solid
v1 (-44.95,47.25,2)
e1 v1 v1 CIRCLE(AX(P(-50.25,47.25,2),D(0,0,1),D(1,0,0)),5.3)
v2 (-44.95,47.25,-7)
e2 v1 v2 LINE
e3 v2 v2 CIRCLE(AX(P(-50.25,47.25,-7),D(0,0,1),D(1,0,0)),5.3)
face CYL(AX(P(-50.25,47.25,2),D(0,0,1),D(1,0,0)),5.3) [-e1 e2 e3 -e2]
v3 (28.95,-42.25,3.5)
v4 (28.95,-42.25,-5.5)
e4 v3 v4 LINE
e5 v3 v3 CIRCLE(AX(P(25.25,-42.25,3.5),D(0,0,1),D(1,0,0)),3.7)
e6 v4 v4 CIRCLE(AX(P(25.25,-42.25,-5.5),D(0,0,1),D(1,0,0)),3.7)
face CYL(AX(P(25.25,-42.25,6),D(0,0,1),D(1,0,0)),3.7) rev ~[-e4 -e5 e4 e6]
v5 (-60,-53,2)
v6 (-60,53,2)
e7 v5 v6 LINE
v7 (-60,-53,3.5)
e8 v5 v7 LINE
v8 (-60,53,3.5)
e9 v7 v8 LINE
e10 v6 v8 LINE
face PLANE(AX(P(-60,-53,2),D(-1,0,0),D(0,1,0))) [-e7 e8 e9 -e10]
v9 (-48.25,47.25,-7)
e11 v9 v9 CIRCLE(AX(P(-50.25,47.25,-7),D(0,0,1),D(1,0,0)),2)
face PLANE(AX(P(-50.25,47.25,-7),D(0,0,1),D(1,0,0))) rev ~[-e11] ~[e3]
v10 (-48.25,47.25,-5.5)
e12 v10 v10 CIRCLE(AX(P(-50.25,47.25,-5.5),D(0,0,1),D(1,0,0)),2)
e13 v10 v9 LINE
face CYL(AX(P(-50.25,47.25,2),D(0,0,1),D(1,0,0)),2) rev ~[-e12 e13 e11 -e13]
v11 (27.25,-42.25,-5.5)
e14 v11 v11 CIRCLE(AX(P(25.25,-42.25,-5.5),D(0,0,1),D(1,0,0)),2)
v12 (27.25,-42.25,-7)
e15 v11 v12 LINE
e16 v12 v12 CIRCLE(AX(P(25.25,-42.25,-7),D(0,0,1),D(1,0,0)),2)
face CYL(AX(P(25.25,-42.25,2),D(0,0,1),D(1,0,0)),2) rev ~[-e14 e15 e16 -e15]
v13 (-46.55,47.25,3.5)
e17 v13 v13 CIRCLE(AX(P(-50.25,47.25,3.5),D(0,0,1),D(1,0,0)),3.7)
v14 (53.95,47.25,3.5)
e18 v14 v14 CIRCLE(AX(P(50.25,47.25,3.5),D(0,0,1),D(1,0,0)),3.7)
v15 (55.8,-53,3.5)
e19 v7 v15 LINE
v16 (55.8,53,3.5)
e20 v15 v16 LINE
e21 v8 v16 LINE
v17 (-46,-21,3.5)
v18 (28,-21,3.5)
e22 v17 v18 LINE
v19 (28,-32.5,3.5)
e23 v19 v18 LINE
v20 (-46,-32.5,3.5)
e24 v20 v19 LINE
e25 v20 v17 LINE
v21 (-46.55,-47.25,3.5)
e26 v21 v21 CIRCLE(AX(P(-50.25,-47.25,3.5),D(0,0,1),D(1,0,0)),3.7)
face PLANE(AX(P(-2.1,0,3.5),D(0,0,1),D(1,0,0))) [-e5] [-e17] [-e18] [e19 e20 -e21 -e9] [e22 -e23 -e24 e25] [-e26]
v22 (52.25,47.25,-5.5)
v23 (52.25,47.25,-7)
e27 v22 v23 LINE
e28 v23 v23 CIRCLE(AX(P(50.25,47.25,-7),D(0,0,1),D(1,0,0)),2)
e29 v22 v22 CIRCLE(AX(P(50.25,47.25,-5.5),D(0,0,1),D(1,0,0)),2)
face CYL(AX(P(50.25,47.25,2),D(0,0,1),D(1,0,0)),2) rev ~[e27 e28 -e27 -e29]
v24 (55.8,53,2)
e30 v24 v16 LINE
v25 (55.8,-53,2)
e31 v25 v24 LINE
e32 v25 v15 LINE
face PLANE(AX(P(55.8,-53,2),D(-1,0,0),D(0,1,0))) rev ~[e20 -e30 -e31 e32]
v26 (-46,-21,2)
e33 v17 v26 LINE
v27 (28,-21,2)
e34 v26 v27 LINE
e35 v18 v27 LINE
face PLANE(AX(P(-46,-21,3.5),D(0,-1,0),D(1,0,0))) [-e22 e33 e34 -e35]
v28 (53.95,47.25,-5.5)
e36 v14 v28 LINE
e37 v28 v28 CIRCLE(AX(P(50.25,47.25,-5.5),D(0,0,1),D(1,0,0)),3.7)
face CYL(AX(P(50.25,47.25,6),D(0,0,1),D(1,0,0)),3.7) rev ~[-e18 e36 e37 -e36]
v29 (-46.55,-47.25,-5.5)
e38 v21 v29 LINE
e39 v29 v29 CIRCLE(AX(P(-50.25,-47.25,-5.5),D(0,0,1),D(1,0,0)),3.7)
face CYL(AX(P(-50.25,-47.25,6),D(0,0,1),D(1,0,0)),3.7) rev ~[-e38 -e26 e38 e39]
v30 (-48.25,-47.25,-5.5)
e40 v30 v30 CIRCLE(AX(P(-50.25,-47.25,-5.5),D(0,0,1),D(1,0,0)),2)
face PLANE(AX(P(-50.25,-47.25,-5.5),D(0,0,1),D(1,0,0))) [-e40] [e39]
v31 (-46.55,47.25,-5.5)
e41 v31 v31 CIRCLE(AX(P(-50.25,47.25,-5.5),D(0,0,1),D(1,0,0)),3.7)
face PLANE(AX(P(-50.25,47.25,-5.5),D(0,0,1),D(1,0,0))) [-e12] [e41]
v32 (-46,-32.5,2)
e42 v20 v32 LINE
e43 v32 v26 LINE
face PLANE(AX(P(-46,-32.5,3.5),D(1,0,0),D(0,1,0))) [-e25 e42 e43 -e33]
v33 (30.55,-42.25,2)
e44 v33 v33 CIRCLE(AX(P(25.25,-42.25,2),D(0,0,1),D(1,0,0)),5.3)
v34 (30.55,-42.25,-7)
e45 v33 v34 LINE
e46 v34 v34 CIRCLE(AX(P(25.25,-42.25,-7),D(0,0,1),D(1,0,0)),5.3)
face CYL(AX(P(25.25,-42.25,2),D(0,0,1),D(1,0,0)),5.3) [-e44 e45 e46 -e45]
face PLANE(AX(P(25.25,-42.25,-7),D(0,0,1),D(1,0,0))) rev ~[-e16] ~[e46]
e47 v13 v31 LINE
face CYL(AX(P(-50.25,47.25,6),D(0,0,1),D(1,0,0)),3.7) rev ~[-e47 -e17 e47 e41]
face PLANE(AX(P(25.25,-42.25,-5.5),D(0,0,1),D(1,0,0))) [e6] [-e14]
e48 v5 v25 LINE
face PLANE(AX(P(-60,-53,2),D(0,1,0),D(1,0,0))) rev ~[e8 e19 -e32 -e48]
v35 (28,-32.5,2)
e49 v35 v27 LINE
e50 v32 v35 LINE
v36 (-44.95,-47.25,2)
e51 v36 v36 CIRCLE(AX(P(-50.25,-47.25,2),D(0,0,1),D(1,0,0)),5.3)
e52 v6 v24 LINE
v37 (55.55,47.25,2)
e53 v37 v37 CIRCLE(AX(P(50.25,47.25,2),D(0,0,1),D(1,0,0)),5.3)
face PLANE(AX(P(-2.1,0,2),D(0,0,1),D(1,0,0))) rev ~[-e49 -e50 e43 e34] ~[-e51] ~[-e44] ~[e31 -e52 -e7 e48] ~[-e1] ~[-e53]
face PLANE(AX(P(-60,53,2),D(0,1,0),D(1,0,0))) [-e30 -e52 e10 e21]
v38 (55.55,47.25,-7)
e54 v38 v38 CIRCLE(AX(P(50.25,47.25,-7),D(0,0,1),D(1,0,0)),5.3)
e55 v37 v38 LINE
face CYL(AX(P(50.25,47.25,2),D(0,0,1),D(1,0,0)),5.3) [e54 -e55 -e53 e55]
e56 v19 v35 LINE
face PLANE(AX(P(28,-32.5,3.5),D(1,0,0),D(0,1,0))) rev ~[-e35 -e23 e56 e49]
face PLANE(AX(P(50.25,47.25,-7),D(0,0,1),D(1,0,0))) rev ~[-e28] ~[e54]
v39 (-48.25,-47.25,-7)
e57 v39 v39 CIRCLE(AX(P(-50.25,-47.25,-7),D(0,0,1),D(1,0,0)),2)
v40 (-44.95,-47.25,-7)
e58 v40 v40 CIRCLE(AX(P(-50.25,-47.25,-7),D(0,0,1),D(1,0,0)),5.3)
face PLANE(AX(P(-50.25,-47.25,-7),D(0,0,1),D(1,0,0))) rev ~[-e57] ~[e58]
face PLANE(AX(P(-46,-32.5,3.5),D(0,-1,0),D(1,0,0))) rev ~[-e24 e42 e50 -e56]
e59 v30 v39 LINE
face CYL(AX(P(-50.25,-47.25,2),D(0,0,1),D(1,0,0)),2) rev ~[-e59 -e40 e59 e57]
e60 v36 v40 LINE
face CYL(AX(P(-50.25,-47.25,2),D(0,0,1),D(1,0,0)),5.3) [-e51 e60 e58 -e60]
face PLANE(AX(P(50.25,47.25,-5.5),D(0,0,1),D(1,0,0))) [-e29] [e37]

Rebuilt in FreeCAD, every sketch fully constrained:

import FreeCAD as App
import Part
import Sketcher

V = App.Vector

doc = App.newDocument("Part")
params = doc.addObject("Spreadsheet::Sheet", "Params")
for row, (alias, value) in enumerate([
    ("sketch1_width", "74 mm"),
    ("sketch1_height", "11.5 mm"),
    ("pad1_length", "10 mm"),
    ("sketch2_diameter", "7.4 mm"),
    ("pad2_length", "11.5 mm"),
    ("sketch3_diameter", "4 mm"),
    ("sketch3_diameter2", "10.6 mm"),
    ("pad3_length", "9 mm"),
    ("sketch4_height", "106 mm"),
    ("sketch4_width", "115.8 mm"),
    ("pad4_length", "1.5 mm"),
], start=1):
    params.set(f"A{row}", alias)
    params.set(f"B{row}", "=" + value)
    params.setAlias(f"B{row}", alias)

body = doc.addObject("PartDesign::Body", "Body")

# Sketch on XY plane
sketch1 = body.newObject("Sketcher::SketchObject", "Sketch")
sketch1.AttachmentSupport = (doc.getObject("XY_Plane"), [""])
sketch1.MapMode = "FlatFace"
sketch1.AttachmentOffset = App.Placement(V(0, 0, 3.5), App.Rotation())
sketch1.addGeometry(Part.LineSegment(V(-46, -21, 0), V(-46, -32, 0)), False)
sketch1.addGeometry(Part.LineSegment(V(-46, -32, 0), V(28, -32, 0)), False)
sketch1.addGeometry(Part.LineSegment(V(28, -32, 0), V(28, -21, 0)), False)
sketch1.addGeometry(Part.LineSegment(V(28, -21, 0), V(-46, -21, 0)), False)
sketch1.addConstraint(Sketcher.Constraint("Coincident", 0, 2, 1, 1))
sketch1.addConstraint(Sketcher.Constraint("Coincident", 1, 2, 2, 1))
sketch1.addConstraint(Sketcher.Constraint("Coincident", 2, 2, 3, 1))
sketch1.addConstraint(Sketcher.Constraint("Coincident", 3, 2, 0, 1))
sketch1.addConstraint(Sketcher.Constraint("Vertical", 0))
sketch1.addConstraint(Sketcher.Constraint("Horizontal", 1))
sketch1.addConstraint(Sketcher.Constraint("Vertical", 2))
sketch1.addConstraint(Sketcher.Constraint("Horizontal", 3))
sketch1.addConstraint(Sketcher.Constraint("DistanceX", 1, 1, 1, 2, 74.0))
sketch1.addConstraint(Sketcher.Constraint("DistanceY", 0, 2, 0, 1, 11.5))
sketch1.addConstraint(Sketcher.Constraint("DistanceX", 0, 2, -1, 1, 46.0))
sketch1.addConstraint(Sketcher.Constraint("DistanceY", 2, 2, -1, 1, 21.0))
sketch1.setExpression("Constraints[8]", "Params.sketch1_width")
sketch1.setExpression("Constraints[9]", "Params.sketch1_height")
pad1 = body.newObject("PartDesign::Pad", "Pad")
pad1.Profile = sketch1
pad1.setExpression("Length", "Params.pad1_length")
pad1.Reversed = True
body2 = doc.addObject("PartDesign::Body", "Body001")
body2.AllowCompound = True

# Sketch on XY plane
sketch2 = body2.newObject("Sketcher::SketchObject", "Sketch001")
sketch2.AttachmentSupport = (doc.getObject("XY_Plane001"), [""])
sketch2.MapMode = "FlatFace"
sketch2.AttachmentOffset = App.Placement(V(0, 0, 2), App.Rotation())
sketch2.addGeometry(Part.Circle(V(-50.2, -47.2, 0), V(0, 0, 1), 3.7), False)
sketch2.addGeometry(Part.Circle(V(50.2, 47.2, 0), V(0, 0, 1), 3.7), False)
sketch2.addGeometry(Part.Circle(V(-50.2, 47.2, 0), V(0, 0, 1), 3.7), False)
sketch2.addGeometry(Part.Circle(V(25.2, -42.2, 0), V(0, 0, 1), 3.7), False)
sketch2.addConstraint(Sketcher.Constraint("Equal", 0, 1))
sketch2.addConstraint(Sketcher.Constraint("Equal", 1, 2))
sketch2.addConstraint(Sketcher.Constraint("Equal", 2, 3))
sketch2.addConstraint(Sketcher.Constraint("Symmetric", 0, 3, 1, 3, -1, 1))
sketch2.addConstraint(Sketcher.Constraint("Symmetric", 1, 3, 2, 3, -2))
sketch2.addConstraint(Sketcher.Constraint("Diameter", 0, 7.4))
sketch2.addConstraint(Sketcher.Constraint("DistanceY", 0, 3, 3, 3, 5.0))
sketch2.addConstraint(Sketcher.Constraint("DistanceX", 3, 3, 1, 3, 25.0))
sketch2.addConstraint(Sketcher.Constraint("DistanceX", 0, 3, 1, 3, 100.5))
sketch2.addConstraint(Sketcher.Constraint("DistanceY", 0, 3, 1, 3, 94.5))
sketch2.setExpression("Constraints[5]", "Params.sketch2_diameter")
pad2 = body2.newObject("PartDesign::Pad", "Pad001")
pad2.Profile = sketch2
pad2.setExpression("Length", "Params.pad2_length")
pad2.Reversed = True
body3 = doc.addObject("PartDesign::Body", "Body002")
body3.AllowCompound = True
doc.recompute()

body2.Placement = App.Placement(V(0, 0, 4), App.Rotation(V(0, 0, 1), 0))
boolean = body3.newObject("PartDesign::Boolean", "Boolean")
boolean.Type = "Fuse"
boolean.addObjects([body2])
body4 = doc.addObject("PartDesign::Body", "Body003")
body4.AllowCompound = True

# Sketch on XY plane
sketch3 = body4.newObject("Sketcher::SketchObject", "Sketch002")
sketch3.AttachmentSupport = (doc.getObject("XY_Plane003"), [""])
sketch3.MapMode = "FlatFace"
sketch3.AttachmentOffset = App.Placement(V(0, 0, 2), App.Rotation())
sketch3.addGeometry(Part.Circle(V(-50.2, -47.2, 0), V(0, 0, 1), 5.3), False)
sketch3.addGeometry(Part.Circle(V(-50.2, -47.2, 0), V(0, 0, 1), 2), False)
sketch3.addGeometry(Part.Circle(V(50.2, 47.2, 0), V(0, 0, 1), 5.3), False)
sketch3.addGeometry(Part.Circle(V(50.2, 47.2, 0), V(0, 0, 1), 2), False)
sketch3.addGeometry(Part.Circle(V(-50.2, 47.2, 0), V(0, 0, 1), 5.3), False)
sketch3.addGeometry(Part.Circle(V(-50.2, 47.2, 0), V(0, 0, 1), 2), False)
sketch3.addGeometry(Part.Circle(V(25.2, -42.2, 0), V(0, 0, 1), 5.3), False)
sketch3.addGeometry(Part.Circle(V(25.2, -42.2, 0), V(0, 0, 1), 2), False)
sketch3.addConstraint(Sketcher.Constraint("Coincident", 1, 3, 0, 3))
sketch3.addConstraint(Sketcher.Constraint("Coincident", 3, 3, 2, 3))
sketch3.addConstraint(Sketcher.Constraint("Coincident", 5, 3, 4, 3))
sketch3.addConstraint(Sketcher.Constraint("Coincident", 7, 3, 6, 3))
sketch3.addConstraint(Sketcher.Constraint("Equal", 0, 2))
sketch3.addConstraint(Sketcher.Constraint("Equal", 1, 3))
sketch3.addConstraint(Sketcher.Constraint("Equal", 2, 4))
sketch3.addConstraint(Sketcher.Constraint("Equal", 3, 5))
sketch3.addConstraint(Sketcher.Constraint("Equal", 4, 6))
sketch3.addConstraint(Sketcher.Constraint("Equal", 5, 7))
sketch3.addConstraint(Sketcher.Constraint("Symmetric", 0, 3, 2, 3, -1, 1))
sketch3.addConstraint(Sketcher.Constraint("Symmetric", 2, 3, 4, 3, -2))
sketch3.addConstraint(Sketcher.Constraint("Diameter", 1, 4.0))
sketch3.addConstraint(Sketcher.Constraint("Diameter", 0, 10.6))
sketch3.addConstraint(Sketcher.Constraint("DistanceY", 0, 3, 6, 3, 5.0))
sketch3.addConstraint(Sketcher.Constraint("DistanceX", 6, 3, 2, 3, 25.0))
sketch3.addConstraint(Sketcher.Constraint("DistanceX", 0, 3, 2, 3, 100.5))
sketch3.addConstraint(Sketcher.Constraint("DistanceY", 0, 3, 2, 3, 94.5))
sketch3.setExpression("Constraints[12]", "Params.sketch3_diameter")
sketch3.setExpression("Constraints[13]", "Params.sketch3_diameter2")
pad3 = body4.newObject("PartDesign::Pad", "Pad002")
pad3.Profile = sketch3
pad3.setExpression("Length", "Params.pad3_length")
pad3.Reversed = True
body5 = doc.addObject("PartDesign::Body", "Body004")

# Sketch on XY plane
sketch4 = body5.newObject("Sketcher::SketchObject", "Sketch003")
sketch4.AttachmentSupport = (doc.getObject("XY_Plane004"), [""])
sketch4.MapMode = "FlatFace"
sketch4.AttachmentOffset = App.Placement(V(0, 0, 2), App.Rotation())
sketch4.addGeometry(Part.LineSegment(V(-60, 53, 0), V(-60, -53, 0)), False)
sketch4.addGeometry(Part.LineSegment(V(-60, -53, 0), V(56, -53, 0)), False)
sketch4.addGeometry(Part.LineSegment(V(56, -53, 0), V(56, 53, 0)), False)
sketch4.addGeometry(Part.LineSegment(V(56, 53, 0), V(-60, 53, 0)), False)
sketch4.addConstraint(Sketcher.Constraint("Coincident", 0, 2, 1, 1))
sketch4.addConstraint(Sketcher.Constraint("Coincident", 1, 2, 2, 1))
sketch4.addConstraint(Sketcher.Constraint("Coincident", 2, 2, 3, 1))
sketch4.addConstraint(Sketcher.Constraint("Coincident", 3, 2, 0, 1))
sketch4.addConstraint(Sketcher.Constraint("Vertical", 0))
sketch4.addConstraint(Sketcher.Constraint("Horizontal", 1))
sketch4.addConstraint(Sketcher.Constraint("Vertical", 2))
sketch4.addConstraint(Sketcher.Constraint("Horizontal", 3))
sketch4.addConstraint(Sketcher.Constraint("DistanceY", 0, 2, 0, 1, 106.0))
sketch4.addConstraint(Sketcher.Constraint("DistanceX", 1, 1, 1, 2, 115.8))
sketch4.addConstraint(Sketcher.Constraint("DistanceX", 0, 2, -1, 1, 60.0))
sketch4.addConstraint(Sketcher.Constraint("DistanceY", 0, 2, -1, 1, 53.0))
sketch4.setExpression("Constraints[8]", "Params.sketch4_height")
sketch4.setExpression("Constraints[9]", "Params.sketch4_width")
pad4 = body5.newObject("PartDesign::Pad", "Pad003")
pad4.Profile = sketch4
pad4.setExpression("Length", "Params.pad4_length")
doc.recompute()

boolean2 = body5.newObject("PartDesign::Boolean", "Boolean001")
boolean2.Type = "Fuse"
boolean2.addObjects([body4])
doc.recompute()

boolean3 = body5.newObject("PartDesign::Boolean", "Boolean002")
boolean3.Type = "Cut"
boolean3.addObjects([body3])
doc.recompute()

boolean4 = body5.newObject("PartDesign::Boolean", "Boolean003")
boolean4.Type = "Cut"
boolean4.addObjects([body])

doc.recompute()
